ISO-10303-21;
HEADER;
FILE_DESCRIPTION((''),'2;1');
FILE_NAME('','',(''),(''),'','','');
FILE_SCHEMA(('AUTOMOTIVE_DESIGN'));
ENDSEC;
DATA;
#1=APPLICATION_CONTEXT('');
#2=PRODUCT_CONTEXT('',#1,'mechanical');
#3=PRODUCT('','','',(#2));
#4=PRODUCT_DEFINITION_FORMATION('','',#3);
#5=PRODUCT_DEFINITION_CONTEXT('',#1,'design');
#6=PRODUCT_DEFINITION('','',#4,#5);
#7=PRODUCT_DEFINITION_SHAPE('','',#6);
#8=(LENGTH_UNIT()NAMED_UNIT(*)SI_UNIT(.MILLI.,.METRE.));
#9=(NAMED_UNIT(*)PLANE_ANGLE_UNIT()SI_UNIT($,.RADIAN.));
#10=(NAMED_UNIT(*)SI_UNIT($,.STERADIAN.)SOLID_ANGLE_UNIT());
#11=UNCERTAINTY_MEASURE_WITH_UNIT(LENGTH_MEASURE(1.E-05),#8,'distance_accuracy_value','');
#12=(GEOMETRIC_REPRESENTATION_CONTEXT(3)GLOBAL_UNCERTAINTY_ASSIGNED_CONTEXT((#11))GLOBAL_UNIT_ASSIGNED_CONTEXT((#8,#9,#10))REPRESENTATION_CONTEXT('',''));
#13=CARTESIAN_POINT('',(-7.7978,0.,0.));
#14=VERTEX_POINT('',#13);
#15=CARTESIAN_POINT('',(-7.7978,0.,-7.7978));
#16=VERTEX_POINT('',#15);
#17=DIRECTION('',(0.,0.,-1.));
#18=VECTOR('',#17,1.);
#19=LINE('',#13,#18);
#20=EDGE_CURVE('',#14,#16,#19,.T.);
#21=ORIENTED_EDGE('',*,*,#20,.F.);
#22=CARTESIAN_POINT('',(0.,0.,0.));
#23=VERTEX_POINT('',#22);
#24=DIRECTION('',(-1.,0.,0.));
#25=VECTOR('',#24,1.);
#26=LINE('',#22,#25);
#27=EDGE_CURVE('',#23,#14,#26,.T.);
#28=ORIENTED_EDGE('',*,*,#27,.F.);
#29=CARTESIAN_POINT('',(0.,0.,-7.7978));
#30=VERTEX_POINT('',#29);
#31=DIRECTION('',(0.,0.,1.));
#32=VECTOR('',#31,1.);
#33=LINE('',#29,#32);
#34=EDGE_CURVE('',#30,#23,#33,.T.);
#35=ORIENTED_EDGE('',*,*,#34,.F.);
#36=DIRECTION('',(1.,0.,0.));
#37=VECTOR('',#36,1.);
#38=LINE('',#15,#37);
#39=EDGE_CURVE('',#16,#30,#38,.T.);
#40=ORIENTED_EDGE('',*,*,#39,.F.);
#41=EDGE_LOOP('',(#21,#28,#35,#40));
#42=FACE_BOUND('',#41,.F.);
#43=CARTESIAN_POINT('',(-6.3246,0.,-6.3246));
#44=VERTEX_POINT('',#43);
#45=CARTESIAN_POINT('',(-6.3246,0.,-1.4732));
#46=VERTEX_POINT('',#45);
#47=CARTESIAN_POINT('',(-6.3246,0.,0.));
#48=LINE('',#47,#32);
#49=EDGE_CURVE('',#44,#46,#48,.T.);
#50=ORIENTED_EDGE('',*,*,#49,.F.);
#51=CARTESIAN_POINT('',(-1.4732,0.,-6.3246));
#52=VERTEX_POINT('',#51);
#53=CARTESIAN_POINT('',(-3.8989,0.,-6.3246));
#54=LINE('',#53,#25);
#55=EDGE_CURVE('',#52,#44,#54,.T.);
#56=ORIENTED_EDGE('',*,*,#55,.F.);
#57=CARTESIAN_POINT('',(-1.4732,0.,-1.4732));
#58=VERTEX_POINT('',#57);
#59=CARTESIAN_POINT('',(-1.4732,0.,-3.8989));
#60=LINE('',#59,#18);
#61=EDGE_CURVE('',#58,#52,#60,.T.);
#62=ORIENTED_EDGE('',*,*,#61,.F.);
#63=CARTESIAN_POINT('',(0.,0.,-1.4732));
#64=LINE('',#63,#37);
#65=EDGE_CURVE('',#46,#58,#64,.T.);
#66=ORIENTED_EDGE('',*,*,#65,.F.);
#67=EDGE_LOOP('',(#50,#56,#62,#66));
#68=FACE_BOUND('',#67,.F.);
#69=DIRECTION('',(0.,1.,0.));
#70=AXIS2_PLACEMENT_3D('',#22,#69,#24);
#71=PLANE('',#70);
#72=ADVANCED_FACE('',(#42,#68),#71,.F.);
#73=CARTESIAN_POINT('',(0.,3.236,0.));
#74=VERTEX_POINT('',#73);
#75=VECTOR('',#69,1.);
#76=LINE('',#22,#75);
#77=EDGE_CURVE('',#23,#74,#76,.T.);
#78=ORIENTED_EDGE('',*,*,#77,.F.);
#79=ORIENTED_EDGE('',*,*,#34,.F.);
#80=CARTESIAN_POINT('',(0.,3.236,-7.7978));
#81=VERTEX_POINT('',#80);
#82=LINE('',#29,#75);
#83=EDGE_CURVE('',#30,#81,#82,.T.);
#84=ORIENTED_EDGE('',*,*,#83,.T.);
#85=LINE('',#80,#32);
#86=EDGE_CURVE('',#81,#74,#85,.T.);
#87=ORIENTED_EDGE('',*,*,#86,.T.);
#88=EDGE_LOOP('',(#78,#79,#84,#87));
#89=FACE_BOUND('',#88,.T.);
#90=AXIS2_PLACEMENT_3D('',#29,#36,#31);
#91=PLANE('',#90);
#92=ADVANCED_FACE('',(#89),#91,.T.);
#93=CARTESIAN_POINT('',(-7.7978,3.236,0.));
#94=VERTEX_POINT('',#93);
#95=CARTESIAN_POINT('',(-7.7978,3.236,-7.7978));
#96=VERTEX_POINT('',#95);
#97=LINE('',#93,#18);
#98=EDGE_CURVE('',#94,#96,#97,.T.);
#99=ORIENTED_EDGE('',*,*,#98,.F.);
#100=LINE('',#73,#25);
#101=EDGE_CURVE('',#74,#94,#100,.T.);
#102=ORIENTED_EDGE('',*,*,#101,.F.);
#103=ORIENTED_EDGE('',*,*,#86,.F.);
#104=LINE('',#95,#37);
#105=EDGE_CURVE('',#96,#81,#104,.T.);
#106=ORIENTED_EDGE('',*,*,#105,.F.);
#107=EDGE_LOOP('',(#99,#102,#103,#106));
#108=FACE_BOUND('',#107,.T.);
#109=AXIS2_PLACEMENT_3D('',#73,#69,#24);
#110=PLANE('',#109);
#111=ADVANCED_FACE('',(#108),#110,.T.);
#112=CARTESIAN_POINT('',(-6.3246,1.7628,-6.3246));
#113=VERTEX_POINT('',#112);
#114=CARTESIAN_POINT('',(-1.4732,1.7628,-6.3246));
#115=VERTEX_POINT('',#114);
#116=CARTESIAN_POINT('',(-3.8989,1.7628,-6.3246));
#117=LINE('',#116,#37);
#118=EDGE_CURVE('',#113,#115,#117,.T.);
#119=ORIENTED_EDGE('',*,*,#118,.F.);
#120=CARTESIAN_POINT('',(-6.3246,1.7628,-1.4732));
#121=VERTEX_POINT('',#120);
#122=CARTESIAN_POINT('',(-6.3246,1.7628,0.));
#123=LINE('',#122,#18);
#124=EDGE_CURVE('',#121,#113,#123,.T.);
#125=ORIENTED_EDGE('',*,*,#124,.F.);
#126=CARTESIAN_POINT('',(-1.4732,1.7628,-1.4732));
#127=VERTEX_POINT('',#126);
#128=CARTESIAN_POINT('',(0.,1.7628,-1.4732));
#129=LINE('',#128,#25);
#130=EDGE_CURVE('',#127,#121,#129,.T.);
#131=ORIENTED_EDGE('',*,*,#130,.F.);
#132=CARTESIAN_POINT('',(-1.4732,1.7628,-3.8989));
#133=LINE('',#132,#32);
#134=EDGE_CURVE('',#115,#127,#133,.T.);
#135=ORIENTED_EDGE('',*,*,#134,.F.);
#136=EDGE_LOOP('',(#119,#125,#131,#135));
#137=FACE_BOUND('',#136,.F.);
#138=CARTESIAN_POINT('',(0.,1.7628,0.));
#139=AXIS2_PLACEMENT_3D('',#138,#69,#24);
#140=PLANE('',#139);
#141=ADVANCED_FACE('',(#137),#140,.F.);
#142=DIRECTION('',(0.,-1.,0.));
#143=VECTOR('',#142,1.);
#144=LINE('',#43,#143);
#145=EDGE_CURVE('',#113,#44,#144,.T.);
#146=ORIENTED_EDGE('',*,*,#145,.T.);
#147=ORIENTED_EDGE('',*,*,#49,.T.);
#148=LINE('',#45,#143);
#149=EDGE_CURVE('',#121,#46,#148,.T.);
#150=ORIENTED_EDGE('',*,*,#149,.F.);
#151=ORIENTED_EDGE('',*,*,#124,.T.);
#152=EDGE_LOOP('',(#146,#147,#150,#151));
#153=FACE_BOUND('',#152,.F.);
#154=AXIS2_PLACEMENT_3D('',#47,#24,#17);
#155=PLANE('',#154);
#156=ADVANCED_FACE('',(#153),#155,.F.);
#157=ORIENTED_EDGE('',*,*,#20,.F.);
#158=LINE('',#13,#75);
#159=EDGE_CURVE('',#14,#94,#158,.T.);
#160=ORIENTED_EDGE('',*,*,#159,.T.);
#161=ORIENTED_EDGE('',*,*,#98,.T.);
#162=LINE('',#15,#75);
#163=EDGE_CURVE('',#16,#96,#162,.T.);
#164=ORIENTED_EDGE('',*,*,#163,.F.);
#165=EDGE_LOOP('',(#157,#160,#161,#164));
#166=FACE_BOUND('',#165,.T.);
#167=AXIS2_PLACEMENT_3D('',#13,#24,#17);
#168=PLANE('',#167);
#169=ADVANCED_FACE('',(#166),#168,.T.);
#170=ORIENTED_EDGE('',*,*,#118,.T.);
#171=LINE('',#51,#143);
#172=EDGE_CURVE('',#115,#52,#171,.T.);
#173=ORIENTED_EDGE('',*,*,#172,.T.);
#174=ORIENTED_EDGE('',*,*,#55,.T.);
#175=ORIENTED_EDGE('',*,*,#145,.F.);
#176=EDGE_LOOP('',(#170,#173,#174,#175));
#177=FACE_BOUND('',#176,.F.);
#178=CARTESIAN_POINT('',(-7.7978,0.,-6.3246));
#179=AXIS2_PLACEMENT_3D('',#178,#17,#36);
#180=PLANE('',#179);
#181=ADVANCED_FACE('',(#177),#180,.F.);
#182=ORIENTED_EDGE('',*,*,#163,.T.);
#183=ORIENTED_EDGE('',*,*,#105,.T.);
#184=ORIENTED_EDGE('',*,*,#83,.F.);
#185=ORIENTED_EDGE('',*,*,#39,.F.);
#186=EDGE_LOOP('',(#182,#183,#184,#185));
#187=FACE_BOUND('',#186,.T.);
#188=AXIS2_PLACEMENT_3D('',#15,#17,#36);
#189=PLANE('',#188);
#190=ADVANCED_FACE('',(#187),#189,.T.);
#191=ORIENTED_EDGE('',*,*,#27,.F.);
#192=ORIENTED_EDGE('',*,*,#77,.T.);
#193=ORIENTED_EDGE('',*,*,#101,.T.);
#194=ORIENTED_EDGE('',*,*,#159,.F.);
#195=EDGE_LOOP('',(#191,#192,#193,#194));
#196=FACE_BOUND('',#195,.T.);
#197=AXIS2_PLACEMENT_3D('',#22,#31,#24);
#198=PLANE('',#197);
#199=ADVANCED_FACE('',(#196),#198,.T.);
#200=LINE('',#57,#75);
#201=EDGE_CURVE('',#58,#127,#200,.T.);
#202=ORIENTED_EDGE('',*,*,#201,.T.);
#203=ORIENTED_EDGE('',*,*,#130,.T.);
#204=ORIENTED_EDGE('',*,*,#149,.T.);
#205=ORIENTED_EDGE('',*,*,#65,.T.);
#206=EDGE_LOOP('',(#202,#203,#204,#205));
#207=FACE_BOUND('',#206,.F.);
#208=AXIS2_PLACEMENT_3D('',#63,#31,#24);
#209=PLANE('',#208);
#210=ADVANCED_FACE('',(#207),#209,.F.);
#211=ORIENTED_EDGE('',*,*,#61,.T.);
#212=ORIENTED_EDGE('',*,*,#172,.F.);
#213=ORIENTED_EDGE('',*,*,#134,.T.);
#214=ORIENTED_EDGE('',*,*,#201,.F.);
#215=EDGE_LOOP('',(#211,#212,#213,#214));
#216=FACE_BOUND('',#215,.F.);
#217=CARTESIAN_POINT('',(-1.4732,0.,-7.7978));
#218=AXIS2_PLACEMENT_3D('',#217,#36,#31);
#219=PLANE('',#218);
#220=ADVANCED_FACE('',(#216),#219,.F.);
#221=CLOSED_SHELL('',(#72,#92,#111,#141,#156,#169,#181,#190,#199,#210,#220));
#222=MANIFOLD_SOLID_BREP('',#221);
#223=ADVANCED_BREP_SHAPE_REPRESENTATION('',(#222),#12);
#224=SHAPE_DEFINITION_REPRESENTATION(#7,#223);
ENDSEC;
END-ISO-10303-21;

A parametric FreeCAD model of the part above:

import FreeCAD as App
import Part
import Sketcher

V = App.Vector
Q = App.Units.Quantity


def faces_at(feature, points):
    """Names of the faces that lie closest to the given points."""
    faces = feature.Shape.Faces
    near = lambda p: min(range(len(faces)), key=lambda i: faces[i].distToShape(Part.Vertex(*p))[0])
    return sorted({f"Face{near(p) + 1}" for p in points})

doc = App.newDocument("Part")
body = doc.addObject("PartDesign::Body", "Body")

# Sketch on XZ plane
sketch1 = doc.addObject("Sketcher::SketchObject", "Sketch")
body.addObject(sketch1)
sketch1.AttachmentSupport = (doc.XZ_Plane, [""])
sketch1.MapMode = "FlatFace"
sketch1.addGeometry(Part.LineSegment(V(-8, 0, 0), V(0, 0, 0)), False)
sketch1.addGeometry(Part.LineSegment(V(0, 0, 0), V(0, -8, 0)), False)
sketch1.addGeometry(Part.LineSegment(V(0, -8, 0), V(-8, -8, 0)), False)
sketch1.addGeometry(Part.LineSegment(V(-8, -8, 0), V(-8, 0, 0)), False)
sketch1.addConstraint(Sketcher.Constraint("Coincident", 0, 2, 1, 1))
sketch1.addConstraint(Sketcher.Constraint("Coincident", 1, 2, 2, 1))
sketch1.addConstraint(Sketcher.Constraint("Coincident", 2, 2, 3, 1))
sketch1.addConstraint(Sketcher.Constraint("Coincident", 3, 2, 0, 1))
sketch1.addConstraint(Sketcher.Constraint("Horizontal", 0))
sketch1.addConstraint(Sketcher.Constraint("Vertical", 1))
sketch1.addConstraint(Sketcher.Constraint("Horizontal", 2))
sketch1.addConstraint(Sketcher.Constraint("Vertical", 3))
sketch1.addConstraint(Sketcher.Constraint("Coincident", 0, 2, -1, 1))
sketch1.addConstraint(Sketcher.Constraint("Equal", 2, 1))
sketch1.addConstraint(Sketcher.Constraint("DistanceX", 0, 1, 0, 2, Q("0.307 in")))
pad1 = doc.addObject("PartDesign::Pad", "Pad")
body.addObject(pad1)
pad1.Profile = sketch1
pad1.Length = Q("0.1274016 in")
pad1.Reversed = True
doc.recompute()

thickness = doc.addObject("PartDesign::Thickness", "Thickness")
body.addObject(thickness)
thickness.Base = (pad1, faces_at(pad1, [(-2.599, 0, -2.599)]))
thickness.Value = Q("0.058 in")
thickness.Reversed = True
thickness.Join = "Intersection"

doc.recompute()
